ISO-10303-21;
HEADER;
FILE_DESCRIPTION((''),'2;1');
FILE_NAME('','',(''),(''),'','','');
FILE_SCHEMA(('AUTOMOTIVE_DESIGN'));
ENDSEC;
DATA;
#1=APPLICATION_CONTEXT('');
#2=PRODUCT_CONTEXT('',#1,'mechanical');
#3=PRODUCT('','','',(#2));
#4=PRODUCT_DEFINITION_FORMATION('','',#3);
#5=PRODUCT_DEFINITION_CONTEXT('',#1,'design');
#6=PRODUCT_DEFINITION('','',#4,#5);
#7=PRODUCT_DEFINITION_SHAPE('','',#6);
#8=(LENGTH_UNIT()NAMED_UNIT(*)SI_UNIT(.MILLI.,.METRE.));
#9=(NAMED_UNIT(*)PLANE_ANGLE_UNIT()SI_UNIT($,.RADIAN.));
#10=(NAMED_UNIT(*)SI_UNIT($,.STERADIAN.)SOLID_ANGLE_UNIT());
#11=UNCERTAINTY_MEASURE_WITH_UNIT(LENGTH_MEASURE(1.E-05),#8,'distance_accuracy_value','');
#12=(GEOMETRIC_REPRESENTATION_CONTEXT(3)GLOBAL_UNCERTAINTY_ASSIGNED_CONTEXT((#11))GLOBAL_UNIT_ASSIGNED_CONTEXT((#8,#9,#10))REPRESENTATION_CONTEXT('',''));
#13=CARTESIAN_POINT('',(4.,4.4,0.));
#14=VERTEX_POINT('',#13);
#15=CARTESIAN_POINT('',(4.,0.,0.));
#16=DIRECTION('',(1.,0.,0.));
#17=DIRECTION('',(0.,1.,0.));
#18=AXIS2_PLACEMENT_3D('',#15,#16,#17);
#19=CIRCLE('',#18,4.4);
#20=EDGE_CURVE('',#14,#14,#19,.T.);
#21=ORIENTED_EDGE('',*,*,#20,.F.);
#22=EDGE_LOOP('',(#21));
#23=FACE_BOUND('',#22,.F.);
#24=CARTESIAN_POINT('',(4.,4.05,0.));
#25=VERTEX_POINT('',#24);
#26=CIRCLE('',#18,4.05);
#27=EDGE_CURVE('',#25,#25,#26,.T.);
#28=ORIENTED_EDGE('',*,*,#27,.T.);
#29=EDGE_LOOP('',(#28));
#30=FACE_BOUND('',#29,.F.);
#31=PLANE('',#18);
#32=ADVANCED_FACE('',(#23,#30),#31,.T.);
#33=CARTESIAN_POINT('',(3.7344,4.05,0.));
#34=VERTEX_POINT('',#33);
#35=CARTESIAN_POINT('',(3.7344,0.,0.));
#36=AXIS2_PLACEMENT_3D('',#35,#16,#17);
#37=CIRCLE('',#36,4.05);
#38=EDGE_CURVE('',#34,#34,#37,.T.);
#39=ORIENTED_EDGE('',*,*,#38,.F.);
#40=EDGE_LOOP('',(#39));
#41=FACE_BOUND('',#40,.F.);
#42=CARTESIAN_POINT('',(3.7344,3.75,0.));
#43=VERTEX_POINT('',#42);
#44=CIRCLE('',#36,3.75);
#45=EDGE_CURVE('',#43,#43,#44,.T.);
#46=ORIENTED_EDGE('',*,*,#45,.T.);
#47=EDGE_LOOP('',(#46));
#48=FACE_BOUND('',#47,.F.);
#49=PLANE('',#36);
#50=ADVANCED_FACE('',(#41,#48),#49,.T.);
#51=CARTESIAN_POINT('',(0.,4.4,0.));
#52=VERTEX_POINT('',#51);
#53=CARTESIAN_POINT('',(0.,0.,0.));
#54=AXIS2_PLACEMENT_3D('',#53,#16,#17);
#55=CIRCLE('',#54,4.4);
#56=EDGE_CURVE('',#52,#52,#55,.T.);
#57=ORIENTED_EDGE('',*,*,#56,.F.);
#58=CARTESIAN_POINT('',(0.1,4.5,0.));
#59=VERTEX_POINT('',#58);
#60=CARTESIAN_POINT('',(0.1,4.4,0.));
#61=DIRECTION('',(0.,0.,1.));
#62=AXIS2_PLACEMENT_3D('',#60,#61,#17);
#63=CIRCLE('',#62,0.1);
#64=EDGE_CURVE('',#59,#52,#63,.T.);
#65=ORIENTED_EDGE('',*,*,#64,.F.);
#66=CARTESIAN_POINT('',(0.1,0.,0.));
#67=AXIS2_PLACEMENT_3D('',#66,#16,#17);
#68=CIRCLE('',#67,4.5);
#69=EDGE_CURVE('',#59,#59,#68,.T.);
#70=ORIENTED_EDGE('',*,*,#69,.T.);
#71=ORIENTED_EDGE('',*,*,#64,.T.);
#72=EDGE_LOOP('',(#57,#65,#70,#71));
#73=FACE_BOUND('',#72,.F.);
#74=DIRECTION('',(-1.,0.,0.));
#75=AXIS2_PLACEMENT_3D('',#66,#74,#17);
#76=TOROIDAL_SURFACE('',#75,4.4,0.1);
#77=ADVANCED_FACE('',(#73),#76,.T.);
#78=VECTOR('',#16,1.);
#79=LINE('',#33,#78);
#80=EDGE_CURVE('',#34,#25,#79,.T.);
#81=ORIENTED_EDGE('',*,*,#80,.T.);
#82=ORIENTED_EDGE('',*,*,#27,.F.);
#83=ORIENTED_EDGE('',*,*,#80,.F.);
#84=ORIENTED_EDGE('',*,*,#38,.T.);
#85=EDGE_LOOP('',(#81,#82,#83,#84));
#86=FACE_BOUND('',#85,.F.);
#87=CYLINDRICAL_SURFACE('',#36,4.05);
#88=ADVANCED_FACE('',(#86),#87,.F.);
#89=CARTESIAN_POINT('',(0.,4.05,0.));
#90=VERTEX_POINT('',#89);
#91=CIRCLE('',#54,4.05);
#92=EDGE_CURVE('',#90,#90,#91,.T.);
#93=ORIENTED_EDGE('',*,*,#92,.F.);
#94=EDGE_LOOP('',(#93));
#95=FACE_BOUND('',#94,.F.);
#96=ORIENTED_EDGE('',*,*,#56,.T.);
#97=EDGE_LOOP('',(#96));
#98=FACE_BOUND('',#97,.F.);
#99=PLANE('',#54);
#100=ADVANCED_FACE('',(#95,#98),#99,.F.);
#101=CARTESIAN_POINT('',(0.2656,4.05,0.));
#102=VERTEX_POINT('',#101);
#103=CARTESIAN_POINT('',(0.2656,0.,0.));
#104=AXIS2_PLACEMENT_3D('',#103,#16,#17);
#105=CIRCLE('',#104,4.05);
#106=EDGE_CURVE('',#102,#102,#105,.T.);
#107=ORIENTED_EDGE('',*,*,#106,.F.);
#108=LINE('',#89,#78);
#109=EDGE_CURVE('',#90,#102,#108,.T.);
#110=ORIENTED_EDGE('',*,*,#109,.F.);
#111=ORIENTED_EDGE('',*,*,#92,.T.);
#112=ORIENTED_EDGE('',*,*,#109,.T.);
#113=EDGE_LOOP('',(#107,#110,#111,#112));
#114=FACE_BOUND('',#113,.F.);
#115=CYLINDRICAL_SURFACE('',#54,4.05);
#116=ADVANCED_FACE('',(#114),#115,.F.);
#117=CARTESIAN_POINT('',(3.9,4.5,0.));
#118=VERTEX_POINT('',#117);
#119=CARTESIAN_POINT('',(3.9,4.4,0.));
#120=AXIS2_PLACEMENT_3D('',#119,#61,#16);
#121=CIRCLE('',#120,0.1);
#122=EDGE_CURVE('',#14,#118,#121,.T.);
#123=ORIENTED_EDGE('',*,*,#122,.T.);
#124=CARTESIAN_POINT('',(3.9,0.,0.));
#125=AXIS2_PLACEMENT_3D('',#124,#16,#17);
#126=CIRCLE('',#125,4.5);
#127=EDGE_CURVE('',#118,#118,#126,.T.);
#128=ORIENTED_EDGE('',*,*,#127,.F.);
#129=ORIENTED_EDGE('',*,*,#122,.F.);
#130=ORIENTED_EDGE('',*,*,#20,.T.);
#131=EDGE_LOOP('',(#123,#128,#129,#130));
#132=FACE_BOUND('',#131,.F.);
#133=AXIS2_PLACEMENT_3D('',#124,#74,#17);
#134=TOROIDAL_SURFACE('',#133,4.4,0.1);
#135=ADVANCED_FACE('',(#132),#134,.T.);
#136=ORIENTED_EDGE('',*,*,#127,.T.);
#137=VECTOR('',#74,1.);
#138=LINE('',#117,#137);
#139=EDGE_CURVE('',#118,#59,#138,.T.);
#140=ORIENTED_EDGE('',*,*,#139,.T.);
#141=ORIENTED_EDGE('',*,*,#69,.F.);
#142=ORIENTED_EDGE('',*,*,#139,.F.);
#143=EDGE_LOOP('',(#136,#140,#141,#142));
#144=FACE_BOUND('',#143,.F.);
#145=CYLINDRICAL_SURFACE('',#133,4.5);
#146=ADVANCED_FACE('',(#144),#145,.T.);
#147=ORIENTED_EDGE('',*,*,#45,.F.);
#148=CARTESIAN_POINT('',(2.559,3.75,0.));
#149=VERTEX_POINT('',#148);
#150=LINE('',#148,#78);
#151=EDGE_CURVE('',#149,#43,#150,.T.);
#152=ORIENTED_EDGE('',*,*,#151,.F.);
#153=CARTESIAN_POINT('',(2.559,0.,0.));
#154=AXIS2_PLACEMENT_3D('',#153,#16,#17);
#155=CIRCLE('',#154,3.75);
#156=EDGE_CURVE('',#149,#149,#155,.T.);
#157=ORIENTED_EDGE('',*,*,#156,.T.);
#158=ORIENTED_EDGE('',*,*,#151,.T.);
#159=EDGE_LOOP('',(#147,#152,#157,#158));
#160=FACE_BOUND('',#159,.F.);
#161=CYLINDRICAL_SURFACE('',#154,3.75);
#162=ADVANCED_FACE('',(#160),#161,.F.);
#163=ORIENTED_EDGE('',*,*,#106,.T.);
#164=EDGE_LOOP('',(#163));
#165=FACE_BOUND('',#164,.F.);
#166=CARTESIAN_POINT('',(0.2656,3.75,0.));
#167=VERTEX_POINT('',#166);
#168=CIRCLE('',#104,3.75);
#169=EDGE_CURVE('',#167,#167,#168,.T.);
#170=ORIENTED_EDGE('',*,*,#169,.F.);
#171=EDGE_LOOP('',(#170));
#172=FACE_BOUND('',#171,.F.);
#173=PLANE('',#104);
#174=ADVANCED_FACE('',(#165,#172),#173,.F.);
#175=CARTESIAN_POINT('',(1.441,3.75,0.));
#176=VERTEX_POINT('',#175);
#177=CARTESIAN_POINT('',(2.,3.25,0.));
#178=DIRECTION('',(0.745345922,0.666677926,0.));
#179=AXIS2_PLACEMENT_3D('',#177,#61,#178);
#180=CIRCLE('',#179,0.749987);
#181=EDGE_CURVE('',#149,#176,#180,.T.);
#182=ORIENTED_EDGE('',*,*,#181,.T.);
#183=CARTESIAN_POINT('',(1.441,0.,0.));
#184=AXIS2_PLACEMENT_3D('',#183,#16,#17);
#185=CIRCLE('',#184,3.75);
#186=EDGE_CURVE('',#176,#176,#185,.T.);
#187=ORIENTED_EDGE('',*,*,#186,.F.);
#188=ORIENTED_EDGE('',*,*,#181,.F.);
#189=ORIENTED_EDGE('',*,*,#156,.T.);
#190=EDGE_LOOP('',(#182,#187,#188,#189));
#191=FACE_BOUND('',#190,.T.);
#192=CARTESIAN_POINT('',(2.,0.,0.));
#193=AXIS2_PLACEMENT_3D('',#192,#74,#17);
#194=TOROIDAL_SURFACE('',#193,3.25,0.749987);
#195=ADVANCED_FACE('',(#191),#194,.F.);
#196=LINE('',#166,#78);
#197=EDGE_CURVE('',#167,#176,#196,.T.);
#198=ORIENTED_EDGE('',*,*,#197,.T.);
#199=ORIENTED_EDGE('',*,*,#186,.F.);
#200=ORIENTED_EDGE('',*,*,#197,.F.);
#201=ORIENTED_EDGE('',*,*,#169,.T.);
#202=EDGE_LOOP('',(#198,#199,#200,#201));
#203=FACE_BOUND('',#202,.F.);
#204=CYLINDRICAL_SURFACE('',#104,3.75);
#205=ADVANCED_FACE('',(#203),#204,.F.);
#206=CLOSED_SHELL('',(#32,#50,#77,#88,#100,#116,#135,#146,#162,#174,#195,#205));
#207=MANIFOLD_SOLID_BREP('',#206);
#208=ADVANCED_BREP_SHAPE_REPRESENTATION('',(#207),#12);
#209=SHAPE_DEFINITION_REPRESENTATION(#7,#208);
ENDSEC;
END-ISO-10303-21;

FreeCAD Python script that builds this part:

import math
import FreeCAD as App
import Part
import Sketcher

V = App.Vector

doc = App.newDocument("Part")
params = doc.addObject("Spreadsheet::Sheet", "Params")
for row, (alias, value) in enumerate([
    ("sketch1_radius", "0.1 mm"),
    ("sketch1_radius2", "0.75 mm"),
    ("sketch1_width", "3.8 mm"),
    ("sketch1_height", "0.3 mm"),
    ("sketch1_height2", "0.35 mm"),
    ("revolution_angle", "360 deg"),
], start=1):
    params.set(f"A{row}", alias)
    params.set(f"B{row}", "=" + value)
    params.setAlias(f"B{row}", alias)

body = doc.addObject("PartDesign::Body", "Body")

# Sketch on XY plane
sketch1 = body.newObject("Sketcher::SketchObject", "Sketch")
sketch1.AttachmentSupport = (doc.getObject("XY_Plane"), [""])
sketch1.MapMode = "FlatFace"
sketch1.addGeometry([
    Part.LineSegment(V(0, 4.4, 0), V(0, 4.05, 0)),  # 0
    Part.LineSegment(V(0, 4.05, 0), V(0.2656, 4.05, 0)),  # 1
    Part.LineSegment(V(0.2656, 4.05, 0), V(0.2656, 3.75, 0)),  # 2
    Part.LineSegment(V(0.2656, 3.75, 0), V(1.441, 3.75, 0)),  # 3
    Part.ArcOfCircle(Part.Circle(V(2, 3.25, 0), V(0, 0, 1), 0.749987), math.radians(41.81118), math.radians(138.18882)),  # 4
    Part.LineSegment(V(2.559, 3.75, 0), V(3.7344, 3.75, 0)),  # 5
    Part.LineSegment(V(3.7344, 3.75, 0), V(3.7344, 4.05, 0)),  # 6
    Part.LineSegment(V(3.7344, 4.05, 0), V(4, 4.05, 0)),  # 7
    Part.LineSegment(V(4, 4.05, 0), V(4, 4.4, 0)),  # 8
    Part.ArcOfCircle(Part.Circle(V(3.9, 4.4, 0), V(0, 0, 1), 0.1), math.radians(0), math.radians(90)),  # 9
    Part.LineSegment(V(3.9, 4.5, 0), V(0.1, 4.5, 0)),  # 10
    Part.ArcOfCircle(Part.Circle(V(0.1, 4.4, 0), V(0, 0, 1), 0.1), math.radians(90), math.radians(180)),  # 11
], False)
sketch1.addConstraint([
    Sketcher.Constraint("Coincident", 0, 2, 1, 1),
    Sketcher.Constraint("Coincident", 1, 2, 2, 1),
    Sketcher.Constraint("Coincident", 2, 2, 3, 1),
    Sketcher.Constraint("Coincident", 3, 2, 4, 2),
    Sketcher.Constraint("Coincident", 4, 1, 5, 1),
    Sketcher.Constraint("Coincident", 5, 2, 6, 1),
    Sketcher.Constraint("Coincident", 6, 2, 7, 1),
    Sketcher.Constraint("Coincident", 7, 2, 8, 1),
    Sketcher.Constraint("Tangent", 8, 2, 9, 1),
    Sketcher.Constraint("Tangent", 9, 2, 10, 1),
    Sketcher.Constraint("Tangent", 10, 2, 11, 1),
    Sketcher.Constraint("Tangent", 11, 2, 0, 1),
    Sketcher.Constraint("Vertical", 0),
    Sketcher.Constraint("Horizontal", 1),
    Sketcher.Constraint("Vertical", 2),
    Sketcher.Constraint("Horizontal", 3),
    Sketcher.Constraint("Horizontal", 5),
    Sketcher.Constraint("Vertical", 6),
    Sketcher.Constraint("Horizontal", 7),
    Sketcher.Constraint("Vertical", 8),
    Sketcher.Constraint("Horizontal", 10),
    Sketcher.Constraint("Equal", 9, 11),
    Sketcher.Constraint("PointOnObject", 0, 2, -2),
    Sketcher.Constraint("Horizontal", 3, 2, 4, 1),
    Sketcher.Constraint("Horizontal", 1, 2, 6, 2),
    Sketcher.Constraint("Equal", 3, 5),
    Sketcher.Constraint("Equal", 1, 7),
    Sketcher.Constraint("Radius", 9, 0.1),
    Sketcher.Constraint("Radius", 4, 0.75),
    Sketcher.Constraint("DistanceX", 10, 2, 10, 1, 3.8),
    Sketcher.Constraint("DistanceY", 2, 2, 2, 1, 0.3),
    Sketcher.Constraint("DistanceY", 0, 2, 0, 1, 0.35),
    Sketcher.Constraint("DistanceY", -1, 1, 9, 3, 4.4),
    Sketcher.Constraint("DistanceY", 4, 3, 0, 2, 0.8),
    Sketcher.Constraint("DistanceX", 1, 1, 1, 2, 0.2656),
])
sketch1.setExpression("Constraints[27]", "Params.sketch1_radius")
sketch1.setExpression("Constraints[28]", "Params.sketch1_radius2")
sketch1.setExpression("Constraints[29]", "Params.sketch1_width")
sketch1.setExpression("Constraints[30]", "Params.sketch1_height")
sketch1.setExpression("Constraints[31]", "Params.sketch1_height2")
revolution = body.newObject("PartDesign::Revolution", "Revolution")
revolution.Profile = sketch1
revolution.ReferenceAxis = (sketch1, ["H_Axis"])
revolution.setExpression("Angle", "Params.revolution_angle")

doc.recompute()
